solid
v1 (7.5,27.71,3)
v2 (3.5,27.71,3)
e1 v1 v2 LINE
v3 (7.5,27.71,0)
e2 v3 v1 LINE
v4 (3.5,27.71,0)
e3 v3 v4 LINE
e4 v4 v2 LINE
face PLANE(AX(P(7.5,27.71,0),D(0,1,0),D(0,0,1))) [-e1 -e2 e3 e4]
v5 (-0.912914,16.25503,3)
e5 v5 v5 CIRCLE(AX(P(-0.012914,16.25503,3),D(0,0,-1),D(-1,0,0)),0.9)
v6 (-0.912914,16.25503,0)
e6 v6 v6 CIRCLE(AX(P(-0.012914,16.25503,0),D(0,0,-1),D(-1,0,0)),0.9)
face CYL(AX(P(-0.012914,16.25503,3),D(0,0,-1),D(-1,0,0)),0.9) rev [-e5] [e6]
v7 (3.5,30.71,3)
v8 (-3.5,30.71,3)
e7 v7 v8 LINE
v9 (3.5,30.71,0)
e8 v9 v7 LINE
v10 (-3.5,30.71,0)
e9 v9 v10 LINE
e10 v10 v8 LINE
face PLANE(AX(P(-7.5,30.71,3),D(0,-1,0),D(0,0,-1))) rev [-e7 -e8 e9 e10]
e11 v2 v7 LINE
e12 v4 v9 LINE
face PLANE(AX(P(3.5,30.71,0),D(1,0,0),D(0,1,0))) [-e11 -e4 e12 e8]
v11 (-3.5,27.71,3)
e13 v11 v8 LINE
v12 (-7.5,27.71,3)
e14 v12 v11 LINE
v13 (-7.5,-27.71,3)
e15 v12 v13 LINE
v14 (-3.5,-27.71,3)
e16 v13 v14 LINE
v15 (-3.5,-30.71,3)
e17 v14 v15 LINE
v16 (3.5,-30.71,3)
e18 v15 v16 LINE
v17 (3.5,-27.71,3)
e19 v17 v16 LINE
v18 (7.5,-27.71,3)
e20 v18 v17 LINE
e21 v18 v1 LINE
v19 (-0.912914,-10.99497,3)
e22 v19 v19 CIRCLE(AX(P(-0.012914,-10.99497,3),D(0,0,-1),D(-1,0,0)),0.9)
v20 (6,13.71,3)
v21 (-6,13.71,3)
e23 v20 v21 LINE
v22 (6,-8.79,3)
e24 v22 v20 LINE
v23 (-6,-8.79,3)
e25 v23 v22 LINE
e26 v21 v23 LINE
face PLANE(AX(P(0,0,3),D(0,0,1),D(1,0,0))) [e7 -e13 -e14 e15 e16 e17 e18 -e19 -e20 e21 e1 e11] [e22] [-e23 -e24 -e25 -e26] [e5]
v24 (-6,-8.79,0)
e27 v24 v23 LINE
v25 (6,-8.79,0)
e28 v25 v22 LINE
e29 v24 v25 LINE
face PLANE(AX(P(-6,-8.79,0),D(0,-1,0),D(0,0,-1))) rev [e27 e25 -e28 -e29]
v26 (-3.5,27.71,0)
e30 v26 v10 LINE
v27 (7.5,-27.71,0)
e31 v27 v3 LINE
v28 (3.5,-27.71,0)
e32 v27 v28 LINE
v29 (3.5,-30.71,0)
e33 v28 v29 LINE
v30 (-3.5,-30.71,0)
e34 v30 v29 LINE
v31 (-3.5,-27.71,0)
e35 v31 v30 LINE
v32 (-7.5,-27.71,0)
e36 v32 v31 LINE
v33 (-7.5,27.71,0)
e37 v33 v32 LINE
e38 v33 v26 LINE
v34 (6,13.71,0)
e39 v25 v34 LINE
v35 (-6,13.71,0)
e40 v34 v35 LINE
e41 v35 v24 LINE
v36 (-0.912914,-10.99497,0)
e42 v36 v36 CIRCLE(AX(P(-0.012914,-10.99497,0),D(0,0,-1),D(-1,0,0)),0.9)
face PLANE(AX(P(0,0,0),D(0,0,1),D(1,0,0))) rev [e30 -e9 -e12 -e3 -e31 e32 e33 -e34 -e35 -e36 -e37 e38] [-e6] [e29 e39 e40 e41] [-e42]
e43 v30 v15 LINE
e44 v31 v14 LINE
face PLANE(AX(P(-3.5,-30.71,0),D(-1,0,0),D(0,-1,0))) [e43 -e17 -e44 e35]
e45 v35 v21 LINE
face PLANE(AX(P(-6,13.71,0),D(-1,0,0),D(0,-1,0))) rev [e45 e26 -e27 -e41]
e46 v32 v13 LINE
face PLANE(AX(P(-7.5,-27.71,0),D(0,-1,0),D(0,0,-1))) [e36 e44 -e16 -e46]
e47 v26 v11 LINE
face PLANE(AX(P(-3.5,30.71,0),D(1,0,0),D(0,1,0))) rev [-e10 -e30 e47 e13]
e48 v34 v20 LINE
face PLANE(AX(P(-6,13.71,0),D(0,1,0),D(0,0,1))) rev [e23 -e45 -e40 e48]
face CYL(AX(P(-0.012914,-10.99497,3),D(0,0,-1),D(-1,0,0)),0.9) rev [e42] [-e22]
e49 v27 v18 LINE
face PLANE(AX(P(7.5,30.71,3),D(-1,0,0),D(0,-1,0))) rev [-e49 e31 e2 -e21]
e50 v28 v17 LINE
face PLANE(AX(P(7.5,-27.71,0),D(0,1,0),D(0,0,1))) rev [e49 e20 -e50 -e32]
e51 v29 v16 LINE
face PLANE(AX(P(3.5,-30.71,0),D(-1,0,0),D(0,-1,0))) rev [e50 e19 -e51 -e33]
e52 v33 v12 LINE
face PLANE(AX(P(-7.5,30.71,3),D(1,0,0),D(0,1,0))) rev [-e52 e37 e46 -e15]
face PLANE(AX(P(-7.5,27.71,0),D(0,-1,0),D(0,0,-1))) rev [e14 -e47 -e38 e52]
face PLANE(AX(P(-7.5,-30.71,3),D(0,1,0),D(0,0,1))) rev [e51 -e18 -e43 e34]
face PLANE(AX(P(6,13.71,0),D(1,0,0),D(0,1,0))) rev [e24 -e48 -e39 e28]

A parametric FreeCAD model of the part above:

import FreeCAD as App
import Part
import Sketcher

V = App.Vector

doc = App.newDocument("Part")
params = doc.addObject("Spreadsheet::Sheet", "Params")
for row, (alias, value) in enumerate([
    ("sketch1_width", "15 mm"),
    ("sketch1_height", "61.42 mm"),
    ("pad1_length", "3 mm"),
    ("sketch2_width", "4 mm"),
    ("sketch2_height", "3 mm"),
    ("pocket1_length", "3 mm"),
    ("sketch3_width", "4 mm"),
    ("sketch3_height", "3 mm"),
    ("pocket2_length", "3 mm"),
    ("sketch4_width", "12 mm"),
    ("sketch4_height", "22.5 mm"),
    ("pocket3_length", "3 mm"),
    ("sketch5_diameter", "1.8 mm"),
], start=1):
    params.set(f"A{row}", alias)
    params.set(f"B{row}", "=" + value)
    params.setAlias(f"B{row}", alias)

body = doc.addObject("PartDesign::Body", "Body")

# Sketch on XY plane
sketch1 = body.newObject("Sketcher::SketchObject", "Sketch")
sketch1.AttachmentSupport = (doc.getObject("XY_Plane"), [""])
sketch1.MapMode = "FlatFace"
sketch1.addGeometry([
    Part.LineSegment(V(-8, 31, 0), V(-8, -31, 0)),
    Part.LineSegment(V(-8, -31, 0), V(8, -31, 0)),
    Part.LineSegment(V(8, -31, 0), V(8, 31, 0)),
    Part.LineSegment(V(8, 31, 0), V(-8, 31, 0)),
], False)
sketch1.addConstraint([
    Sketcher.Constraint("Coincident", 0, 2, 1, 1),
    Sketcher.Constraint("Coincident", 1, 2, 2, 1),
    Sketcher.Constraint("Coincident", 2, 2, 3, 1),
    Sketcher.Constraint("Coincident", 3, 2, 0, 1),
    Sketcher.Constraint("Vertical", 0),
    Sketcher.Constraint("Horizontal", 1),
    Sketcher.Constraint("Vertical", 2),
    Sketcher.Constraint("Horizontal", 3),
    Sketcher.Constraint("Symmetric", 0, 2, 2, 2, -1, 1),
    Sketcher.Constraint("DistanceX", 1, 1, 1, 2, 15.0),
    Sketcher.Constraint("DistanceY", 0, 2, 0, 1, 61.42),
])
sketch1.setExpression("Constraints[9]", "Params.sketch1_width")
sketch1.setExpression("Constraints[10]", "Params.sketch1_height")
pad1 = body.newObject("PartDesign::Pad", "Pad")
pad1.Profile = sketch1
pad1.setExpression("Length", "Params.pad1_length")

# Sketch on XY plane
sketch2 = body.newObject("Sketcher::SketchObject", "Sketch001")
sketch2.AttachmentSupport = (doc.getObject("XY_Plane"), [""])
sketch2.MapMode = "FlatFace"
sketch2.AttachmentOffset = App.Placement(V(0, 0, 3), App.Rotation())
sketch2.addGeometry([
    Part.LineSegment(V(-7.5, 30.7, 0), V(-7.5, 27.7, 0)),
    Part.LineSegment(V(-7.5, 27.7, 0), V(-3.5, 27.7, 0)),
    Part.LineSegment(V(-3.5, 27.7, 0), V(-3.5, 30.7, 0)),
    Part.LineSegment(V(-3.5, 30.7, 0), V(-7.5, 30.7, 0)),
], False)
sketch2.addConstraint([
    Sketcher.Constraint("Coincident", 0, 2, 1, 1),
    Sketcher.Constraint("Coincident", 1, 2, 2, 1),
    Sketcher.Constraint("Coincident", 2, 2, 3, 1),
    Sketcher.Constraint("Coincident", 3, 2, 0, 1),
    Sketcher.Constraint("Vertical", 0),
    Sketcher.Constraint("Horizontal", 1),
    Sketcher.Constraint("Vertical", 2),
    Sketcher.Constraint("Horizontal", 3),
    Sketcher.Constraint("DistanceX", 1, 1, 1, 2, 4.0),
    Sketcher.Constraint("DistanceY", 0, 2, 0, 1, 3.0),
    Sketcher.Constraint("DistanceX", 0, 2, -1, 1, 7.5),
    Sketcher.Constraint("DistanceY", -1, 1, 0, 2, 27.71),
])
sketch2.setExpression("Constraints[8]", "Params.sketch2_width")
sketch2.setExpression("Constraints[9]", "Params.sketch2_height")
pocket1 = body.newObject("PartDesign::Pocket", "Pocket")
pocket1.Profile = sketch2
pocket1.setExpression("Length", "Params.pocket1_length")
doc.recompute()

mirrored = body.newObject("PartDesign::Mirrored", "Mirrored")
mirrored.Originals = [pocket1]
mirrored.MirrorPlane = (doc.getObject("YZ_Plane"), [""])
body.Tip = mirrored
doc.recompute()

mirrored2 = body.newObject("PartDesign::Mirrored", "Mirrored001")
mirrored2.Originals = [pocket1]
mirrored2.MirrorPlane = (doc.getObject("XZ_Plane"), [""])
body.Tip = mirrored2

# Sketch on XY plane
sketch3 = body.newObject("Sketcher::SketchObject", "Sketch002")
sketch3.AttachmentSupport = (doc.getObject("XY_Plane"), [""])
sketch3.MapMode = "FlatFace"
sketch3.AttachmentOffset = App.Placement(V(0, 0, 3), App.Rotation())
sketch3.addGeometry([
    Part.LineSegment(V(7.5, -30.7, 0), V(7.5, -27.7, 0)),
    Part.LineSegment(V(7.5, -27.7, 0), V(3.5, -27.7, 0)),
    Part.LineSegment(V(3.5, -27.7, 0), V(3.5, -30.7, 0)),
    Part.LineSegment(V(3.5, -30.7, 0), V(7.5, -30.7, 0)),
], False)
sketch3.addConstraint([
    Sketcher.Constraint("Coincident", 0, 2, 1, 1),
    Sketcher.Constraint("Coincident", 1, 2, 2, 1),
    Sketcher.Constraint("Coincident", 2, 2, 3, 1),
    Sketcher.Constraint("Coincident", 3, 2, 0, 1),
    Sketcher.Constraint("Vertical", 0),
    Sketcher.Constraint("Horizontal", 1),
    Sketcher.Constraint("Vertical", 2),
    Sketcher.Constraint("Horizontal", 3),
    Sketcher.Constraint("DistanceX", 1, 2, 1, 1, 4.0),
    Sketcher.Constraint("DistanceY", 0, 1, 0, 2, 3.0),
    Sketcher.Constraint("DistanceX", -1, 1, 0, 2, 7.5),
    Sketcher.Constraint("DistanceY", 0, 2, -1, 1, 27.71),
])
sketch3.setExpression("Constraints[8]", "Params.sketch3_width")
sketch3.setExpression("Constraints[9]", "Params.sketch3_height")
pocket2 = body.newObject("PartDesign::Pocket", "Pocket001")
pocket2.Profile = sketch3
pocket2.setExpression("Length", "Params.pocket2_length")

# Sketch on XY plane
sketch4 = body.newObject("Sketcher::SketchObject", "Sketch003")
sketch4.AttachmentSupport = (doc.getObject("XY_Plane"), [""])
sketch4.MapMode = "FlatFace"
sketch4.AttachmentOffset = App.Placement(V(0, 0, 3), App.Rotation())
sketch4.addGeometry([
    Part.LineSegment(V(-6, 14, 0), V(-6, -9, 0)),
    Part.LineSegment(V(-6, -9, 0), V(6, -9, 0)),
    Part.LineSegment(V(6, -9, 0), V(6, 14, 0)),
    Part.LineSegment(V(6, 14, 0), V(-6, 14, 0)),
], False)
sketch4.addConstraint([
    Sketcher.Constraint("Coincident", 0, 2, 1, 1),
    Sketcher.Constraint("Coincident", 1, 2, 2, 1),
    Sketcher.Constraint("Coincident", 2, 2, 3, 1),
    Sketcher.Constraint("Coincident", 3, 2, 0, 1),
    Sketcher.Constraint("Vertical", 0),
    Sketcher.Constraint("Horizontal", 1),
    Sketcher.Constraint("Vertical", 2),
    Sketcher.Constraint("Horizontal", 3),
    Sketcher.Constraint("DistanceX", 1, 1, 1, 2, 12.0),
    Sketcher.Constraint("DistanceY", 0, 2, 0, 1, 22.5),
    Sketcher.Constraint("DistanceX", 0, 2, -1, 1, 6.0),
    Sketcher.Constraint("DistanceY", 0, 2, -1, 1, 8.79),
])
sketch4.setExpression("Constraints[8]", "Params.sketch4_width")
sketch4.setExpression("Constraints[9]", "Params.sketch4_height")
pocket3 = body.newObject("PartDesign::Pocket", "Pocket002")
pocket3.Profile = sketch4
pocket3.setExpression("Length", "Params.pocket3_length")

# Sketch on XY plane
sketch5 = body.newObject("Sketcher::SketchObject", "Sketch004")
sketch5.AttachmentSupport = (doc.getObject("XY_Plane"), [""])
sketch5.MapMode = "FlatFace"
sketch5.addGeometry([
    Part.Circle(V(0, 16.3, 0), V(0, 0, 1), 0.9),
    Part.Circle(V(0, -11, 0), V(0, 0, 1), 0.9),
], False)
sketch5.addConstraint([
    Sketcher.Constraint("Equal", 0, 1),
    Sketcher.Constraint("Vertical", 0, 3, 1, 3),
    Sketcher.Constraint("Diameter", 0, 1.8),
    Sketcher.Constraint("DistanceY", 1, 3, 0, 3, 27.25),
    Sketcher.Constraint("DistanceY", -1, 1, 0, 3, 16.25503),
    Sketcher.Constraint("DistanceX", 0, 3, -1, 1, 0.012914),
])
sketch5.setExpression("Constraints[2]", "Params.sketch5_diameter")
pocket4 = body.newObject("PartDesign::Pocket", "Pocket003")
pocket4.Profile = sketch5
pocket4.Type = "ThroughAll"
pocket4.Reversed = True

doc.recompute()
